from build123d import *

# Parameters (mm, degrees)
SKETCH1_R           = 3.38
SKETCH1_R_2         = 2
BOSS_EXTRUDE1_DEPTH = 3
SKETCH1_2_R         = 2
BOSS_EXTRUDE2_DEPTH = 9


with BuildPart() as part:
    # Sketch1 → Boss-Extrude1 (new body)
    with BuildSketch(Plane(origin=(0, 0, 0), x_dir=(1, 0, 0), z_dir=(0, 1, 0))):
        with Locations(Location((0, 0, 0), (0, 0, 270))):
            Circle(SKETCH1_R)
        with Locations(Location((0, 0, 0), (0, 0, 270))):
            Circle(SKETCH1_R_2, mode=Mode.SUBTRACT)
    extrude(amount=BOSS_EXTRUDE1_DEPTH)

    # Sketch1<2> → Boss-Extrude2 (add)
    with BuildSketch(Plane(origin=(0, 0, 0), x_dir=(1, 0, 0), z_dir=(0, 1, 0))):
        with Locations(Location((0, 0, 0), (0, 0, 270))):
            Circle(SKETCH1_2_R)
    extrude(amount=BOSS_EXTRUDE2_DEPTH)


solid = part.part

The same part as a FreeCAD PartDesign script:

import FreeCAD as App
import Part
import Sketcher

V = App.Vector
Q = App.Units.Quantity

doc = App.newDocument("Part")
params = doc.addObject("Spreadsheet::Sheet", "Params")
for row, (alias, value) in enumerate([
    ("sketch1_diameter", "4 mm"),
    ("sketch1_diameter2", "6.76 mm"),
    ("pad1_length", "3 mm"),
    ("sketch2_diameter", "4 mm"),
    ("pad2_length", "9 mm"),
], start=1):
    params.set(f"A{row}", alias)
    params.set(f"B{row}", "=" + value)
    params.setAlias(f"B{row}", alias)

body = doc.addObject("PartDesign::Body", "Body")

# Sketch on XZ plane
sketch1 = doc.addObject("Sketcher::SketchObject", "Sketch")
body.addObject(sketch1)
sketch1.AttachmentSupport = (doc.XZ_Plane, [""])
sketch1.MapMode = "FlatFace"
sketch1.addGeometry(Part.Circle(V(0, 0, 0), V(0, 0, 1), 3.4), False)
sketch1.addGeometry(Part.Circle(V(0, 0, 0), V(0, 0, 1), 2), False)
sketch1.addConstraint(Sketcher.Constraint("Coincident", 0, 3, -1, 1))
sketch1.addConstraint(Sketcher.Constraint("Coincident", 1, 3, -1, 1))
sketch1.addConstraint(Sketcher.Constraint("Diameter", 1, Q("4 mm")))
sketch1.addConstraint(Sketcher.Constraint("Diameter", 0, Q("6.76 mm")))
sketch1.setExpression("Constraints[2]", "Params.sketch1_diameter")
sketch1.setExpression("Constraints[3]", "Params.sketch1_diameter2")
pad1 = doc.addObject("PartDesign::Pad", "Pad")
body.addObject(pad1)
pad1.Profile = sketch1
pad1.setExpression("Length", "Params.pad1_length")
pad1.Reversed = True

# Sketch on XZ plane
sketch2 = doc.addObject("Sketcher::SketchObject", "Sketch001")
body.addObject(sketch2)
sketch2.AttachmentSupport = (doc.XZ_Plane, [""])
sketch2.MapMode = "FlatFace"
sketch2.addGeometry(Part.Circle(V(0, 0, 0), V(0, 0, 1), 2), False)
sketch2.addConstraint(Sketcher.Constraint("Coincident", 0, 3, -1, 1))
sketch2.addConstraint(Sketcher.Constraint("Diameter", 0, Q("4 mm")))
sketch2.setExpression("Constraints[1]", "Params.sketch2_diameter")
pad2 = doc.addObject("PartDesign::Pad", "Pad001")
body.addObject(pad2)
pad2.Profile = sketch2
pad2.setExpression("Length", "Params.pad2_length")
pad2.Reversed = True

doc.recompute()
